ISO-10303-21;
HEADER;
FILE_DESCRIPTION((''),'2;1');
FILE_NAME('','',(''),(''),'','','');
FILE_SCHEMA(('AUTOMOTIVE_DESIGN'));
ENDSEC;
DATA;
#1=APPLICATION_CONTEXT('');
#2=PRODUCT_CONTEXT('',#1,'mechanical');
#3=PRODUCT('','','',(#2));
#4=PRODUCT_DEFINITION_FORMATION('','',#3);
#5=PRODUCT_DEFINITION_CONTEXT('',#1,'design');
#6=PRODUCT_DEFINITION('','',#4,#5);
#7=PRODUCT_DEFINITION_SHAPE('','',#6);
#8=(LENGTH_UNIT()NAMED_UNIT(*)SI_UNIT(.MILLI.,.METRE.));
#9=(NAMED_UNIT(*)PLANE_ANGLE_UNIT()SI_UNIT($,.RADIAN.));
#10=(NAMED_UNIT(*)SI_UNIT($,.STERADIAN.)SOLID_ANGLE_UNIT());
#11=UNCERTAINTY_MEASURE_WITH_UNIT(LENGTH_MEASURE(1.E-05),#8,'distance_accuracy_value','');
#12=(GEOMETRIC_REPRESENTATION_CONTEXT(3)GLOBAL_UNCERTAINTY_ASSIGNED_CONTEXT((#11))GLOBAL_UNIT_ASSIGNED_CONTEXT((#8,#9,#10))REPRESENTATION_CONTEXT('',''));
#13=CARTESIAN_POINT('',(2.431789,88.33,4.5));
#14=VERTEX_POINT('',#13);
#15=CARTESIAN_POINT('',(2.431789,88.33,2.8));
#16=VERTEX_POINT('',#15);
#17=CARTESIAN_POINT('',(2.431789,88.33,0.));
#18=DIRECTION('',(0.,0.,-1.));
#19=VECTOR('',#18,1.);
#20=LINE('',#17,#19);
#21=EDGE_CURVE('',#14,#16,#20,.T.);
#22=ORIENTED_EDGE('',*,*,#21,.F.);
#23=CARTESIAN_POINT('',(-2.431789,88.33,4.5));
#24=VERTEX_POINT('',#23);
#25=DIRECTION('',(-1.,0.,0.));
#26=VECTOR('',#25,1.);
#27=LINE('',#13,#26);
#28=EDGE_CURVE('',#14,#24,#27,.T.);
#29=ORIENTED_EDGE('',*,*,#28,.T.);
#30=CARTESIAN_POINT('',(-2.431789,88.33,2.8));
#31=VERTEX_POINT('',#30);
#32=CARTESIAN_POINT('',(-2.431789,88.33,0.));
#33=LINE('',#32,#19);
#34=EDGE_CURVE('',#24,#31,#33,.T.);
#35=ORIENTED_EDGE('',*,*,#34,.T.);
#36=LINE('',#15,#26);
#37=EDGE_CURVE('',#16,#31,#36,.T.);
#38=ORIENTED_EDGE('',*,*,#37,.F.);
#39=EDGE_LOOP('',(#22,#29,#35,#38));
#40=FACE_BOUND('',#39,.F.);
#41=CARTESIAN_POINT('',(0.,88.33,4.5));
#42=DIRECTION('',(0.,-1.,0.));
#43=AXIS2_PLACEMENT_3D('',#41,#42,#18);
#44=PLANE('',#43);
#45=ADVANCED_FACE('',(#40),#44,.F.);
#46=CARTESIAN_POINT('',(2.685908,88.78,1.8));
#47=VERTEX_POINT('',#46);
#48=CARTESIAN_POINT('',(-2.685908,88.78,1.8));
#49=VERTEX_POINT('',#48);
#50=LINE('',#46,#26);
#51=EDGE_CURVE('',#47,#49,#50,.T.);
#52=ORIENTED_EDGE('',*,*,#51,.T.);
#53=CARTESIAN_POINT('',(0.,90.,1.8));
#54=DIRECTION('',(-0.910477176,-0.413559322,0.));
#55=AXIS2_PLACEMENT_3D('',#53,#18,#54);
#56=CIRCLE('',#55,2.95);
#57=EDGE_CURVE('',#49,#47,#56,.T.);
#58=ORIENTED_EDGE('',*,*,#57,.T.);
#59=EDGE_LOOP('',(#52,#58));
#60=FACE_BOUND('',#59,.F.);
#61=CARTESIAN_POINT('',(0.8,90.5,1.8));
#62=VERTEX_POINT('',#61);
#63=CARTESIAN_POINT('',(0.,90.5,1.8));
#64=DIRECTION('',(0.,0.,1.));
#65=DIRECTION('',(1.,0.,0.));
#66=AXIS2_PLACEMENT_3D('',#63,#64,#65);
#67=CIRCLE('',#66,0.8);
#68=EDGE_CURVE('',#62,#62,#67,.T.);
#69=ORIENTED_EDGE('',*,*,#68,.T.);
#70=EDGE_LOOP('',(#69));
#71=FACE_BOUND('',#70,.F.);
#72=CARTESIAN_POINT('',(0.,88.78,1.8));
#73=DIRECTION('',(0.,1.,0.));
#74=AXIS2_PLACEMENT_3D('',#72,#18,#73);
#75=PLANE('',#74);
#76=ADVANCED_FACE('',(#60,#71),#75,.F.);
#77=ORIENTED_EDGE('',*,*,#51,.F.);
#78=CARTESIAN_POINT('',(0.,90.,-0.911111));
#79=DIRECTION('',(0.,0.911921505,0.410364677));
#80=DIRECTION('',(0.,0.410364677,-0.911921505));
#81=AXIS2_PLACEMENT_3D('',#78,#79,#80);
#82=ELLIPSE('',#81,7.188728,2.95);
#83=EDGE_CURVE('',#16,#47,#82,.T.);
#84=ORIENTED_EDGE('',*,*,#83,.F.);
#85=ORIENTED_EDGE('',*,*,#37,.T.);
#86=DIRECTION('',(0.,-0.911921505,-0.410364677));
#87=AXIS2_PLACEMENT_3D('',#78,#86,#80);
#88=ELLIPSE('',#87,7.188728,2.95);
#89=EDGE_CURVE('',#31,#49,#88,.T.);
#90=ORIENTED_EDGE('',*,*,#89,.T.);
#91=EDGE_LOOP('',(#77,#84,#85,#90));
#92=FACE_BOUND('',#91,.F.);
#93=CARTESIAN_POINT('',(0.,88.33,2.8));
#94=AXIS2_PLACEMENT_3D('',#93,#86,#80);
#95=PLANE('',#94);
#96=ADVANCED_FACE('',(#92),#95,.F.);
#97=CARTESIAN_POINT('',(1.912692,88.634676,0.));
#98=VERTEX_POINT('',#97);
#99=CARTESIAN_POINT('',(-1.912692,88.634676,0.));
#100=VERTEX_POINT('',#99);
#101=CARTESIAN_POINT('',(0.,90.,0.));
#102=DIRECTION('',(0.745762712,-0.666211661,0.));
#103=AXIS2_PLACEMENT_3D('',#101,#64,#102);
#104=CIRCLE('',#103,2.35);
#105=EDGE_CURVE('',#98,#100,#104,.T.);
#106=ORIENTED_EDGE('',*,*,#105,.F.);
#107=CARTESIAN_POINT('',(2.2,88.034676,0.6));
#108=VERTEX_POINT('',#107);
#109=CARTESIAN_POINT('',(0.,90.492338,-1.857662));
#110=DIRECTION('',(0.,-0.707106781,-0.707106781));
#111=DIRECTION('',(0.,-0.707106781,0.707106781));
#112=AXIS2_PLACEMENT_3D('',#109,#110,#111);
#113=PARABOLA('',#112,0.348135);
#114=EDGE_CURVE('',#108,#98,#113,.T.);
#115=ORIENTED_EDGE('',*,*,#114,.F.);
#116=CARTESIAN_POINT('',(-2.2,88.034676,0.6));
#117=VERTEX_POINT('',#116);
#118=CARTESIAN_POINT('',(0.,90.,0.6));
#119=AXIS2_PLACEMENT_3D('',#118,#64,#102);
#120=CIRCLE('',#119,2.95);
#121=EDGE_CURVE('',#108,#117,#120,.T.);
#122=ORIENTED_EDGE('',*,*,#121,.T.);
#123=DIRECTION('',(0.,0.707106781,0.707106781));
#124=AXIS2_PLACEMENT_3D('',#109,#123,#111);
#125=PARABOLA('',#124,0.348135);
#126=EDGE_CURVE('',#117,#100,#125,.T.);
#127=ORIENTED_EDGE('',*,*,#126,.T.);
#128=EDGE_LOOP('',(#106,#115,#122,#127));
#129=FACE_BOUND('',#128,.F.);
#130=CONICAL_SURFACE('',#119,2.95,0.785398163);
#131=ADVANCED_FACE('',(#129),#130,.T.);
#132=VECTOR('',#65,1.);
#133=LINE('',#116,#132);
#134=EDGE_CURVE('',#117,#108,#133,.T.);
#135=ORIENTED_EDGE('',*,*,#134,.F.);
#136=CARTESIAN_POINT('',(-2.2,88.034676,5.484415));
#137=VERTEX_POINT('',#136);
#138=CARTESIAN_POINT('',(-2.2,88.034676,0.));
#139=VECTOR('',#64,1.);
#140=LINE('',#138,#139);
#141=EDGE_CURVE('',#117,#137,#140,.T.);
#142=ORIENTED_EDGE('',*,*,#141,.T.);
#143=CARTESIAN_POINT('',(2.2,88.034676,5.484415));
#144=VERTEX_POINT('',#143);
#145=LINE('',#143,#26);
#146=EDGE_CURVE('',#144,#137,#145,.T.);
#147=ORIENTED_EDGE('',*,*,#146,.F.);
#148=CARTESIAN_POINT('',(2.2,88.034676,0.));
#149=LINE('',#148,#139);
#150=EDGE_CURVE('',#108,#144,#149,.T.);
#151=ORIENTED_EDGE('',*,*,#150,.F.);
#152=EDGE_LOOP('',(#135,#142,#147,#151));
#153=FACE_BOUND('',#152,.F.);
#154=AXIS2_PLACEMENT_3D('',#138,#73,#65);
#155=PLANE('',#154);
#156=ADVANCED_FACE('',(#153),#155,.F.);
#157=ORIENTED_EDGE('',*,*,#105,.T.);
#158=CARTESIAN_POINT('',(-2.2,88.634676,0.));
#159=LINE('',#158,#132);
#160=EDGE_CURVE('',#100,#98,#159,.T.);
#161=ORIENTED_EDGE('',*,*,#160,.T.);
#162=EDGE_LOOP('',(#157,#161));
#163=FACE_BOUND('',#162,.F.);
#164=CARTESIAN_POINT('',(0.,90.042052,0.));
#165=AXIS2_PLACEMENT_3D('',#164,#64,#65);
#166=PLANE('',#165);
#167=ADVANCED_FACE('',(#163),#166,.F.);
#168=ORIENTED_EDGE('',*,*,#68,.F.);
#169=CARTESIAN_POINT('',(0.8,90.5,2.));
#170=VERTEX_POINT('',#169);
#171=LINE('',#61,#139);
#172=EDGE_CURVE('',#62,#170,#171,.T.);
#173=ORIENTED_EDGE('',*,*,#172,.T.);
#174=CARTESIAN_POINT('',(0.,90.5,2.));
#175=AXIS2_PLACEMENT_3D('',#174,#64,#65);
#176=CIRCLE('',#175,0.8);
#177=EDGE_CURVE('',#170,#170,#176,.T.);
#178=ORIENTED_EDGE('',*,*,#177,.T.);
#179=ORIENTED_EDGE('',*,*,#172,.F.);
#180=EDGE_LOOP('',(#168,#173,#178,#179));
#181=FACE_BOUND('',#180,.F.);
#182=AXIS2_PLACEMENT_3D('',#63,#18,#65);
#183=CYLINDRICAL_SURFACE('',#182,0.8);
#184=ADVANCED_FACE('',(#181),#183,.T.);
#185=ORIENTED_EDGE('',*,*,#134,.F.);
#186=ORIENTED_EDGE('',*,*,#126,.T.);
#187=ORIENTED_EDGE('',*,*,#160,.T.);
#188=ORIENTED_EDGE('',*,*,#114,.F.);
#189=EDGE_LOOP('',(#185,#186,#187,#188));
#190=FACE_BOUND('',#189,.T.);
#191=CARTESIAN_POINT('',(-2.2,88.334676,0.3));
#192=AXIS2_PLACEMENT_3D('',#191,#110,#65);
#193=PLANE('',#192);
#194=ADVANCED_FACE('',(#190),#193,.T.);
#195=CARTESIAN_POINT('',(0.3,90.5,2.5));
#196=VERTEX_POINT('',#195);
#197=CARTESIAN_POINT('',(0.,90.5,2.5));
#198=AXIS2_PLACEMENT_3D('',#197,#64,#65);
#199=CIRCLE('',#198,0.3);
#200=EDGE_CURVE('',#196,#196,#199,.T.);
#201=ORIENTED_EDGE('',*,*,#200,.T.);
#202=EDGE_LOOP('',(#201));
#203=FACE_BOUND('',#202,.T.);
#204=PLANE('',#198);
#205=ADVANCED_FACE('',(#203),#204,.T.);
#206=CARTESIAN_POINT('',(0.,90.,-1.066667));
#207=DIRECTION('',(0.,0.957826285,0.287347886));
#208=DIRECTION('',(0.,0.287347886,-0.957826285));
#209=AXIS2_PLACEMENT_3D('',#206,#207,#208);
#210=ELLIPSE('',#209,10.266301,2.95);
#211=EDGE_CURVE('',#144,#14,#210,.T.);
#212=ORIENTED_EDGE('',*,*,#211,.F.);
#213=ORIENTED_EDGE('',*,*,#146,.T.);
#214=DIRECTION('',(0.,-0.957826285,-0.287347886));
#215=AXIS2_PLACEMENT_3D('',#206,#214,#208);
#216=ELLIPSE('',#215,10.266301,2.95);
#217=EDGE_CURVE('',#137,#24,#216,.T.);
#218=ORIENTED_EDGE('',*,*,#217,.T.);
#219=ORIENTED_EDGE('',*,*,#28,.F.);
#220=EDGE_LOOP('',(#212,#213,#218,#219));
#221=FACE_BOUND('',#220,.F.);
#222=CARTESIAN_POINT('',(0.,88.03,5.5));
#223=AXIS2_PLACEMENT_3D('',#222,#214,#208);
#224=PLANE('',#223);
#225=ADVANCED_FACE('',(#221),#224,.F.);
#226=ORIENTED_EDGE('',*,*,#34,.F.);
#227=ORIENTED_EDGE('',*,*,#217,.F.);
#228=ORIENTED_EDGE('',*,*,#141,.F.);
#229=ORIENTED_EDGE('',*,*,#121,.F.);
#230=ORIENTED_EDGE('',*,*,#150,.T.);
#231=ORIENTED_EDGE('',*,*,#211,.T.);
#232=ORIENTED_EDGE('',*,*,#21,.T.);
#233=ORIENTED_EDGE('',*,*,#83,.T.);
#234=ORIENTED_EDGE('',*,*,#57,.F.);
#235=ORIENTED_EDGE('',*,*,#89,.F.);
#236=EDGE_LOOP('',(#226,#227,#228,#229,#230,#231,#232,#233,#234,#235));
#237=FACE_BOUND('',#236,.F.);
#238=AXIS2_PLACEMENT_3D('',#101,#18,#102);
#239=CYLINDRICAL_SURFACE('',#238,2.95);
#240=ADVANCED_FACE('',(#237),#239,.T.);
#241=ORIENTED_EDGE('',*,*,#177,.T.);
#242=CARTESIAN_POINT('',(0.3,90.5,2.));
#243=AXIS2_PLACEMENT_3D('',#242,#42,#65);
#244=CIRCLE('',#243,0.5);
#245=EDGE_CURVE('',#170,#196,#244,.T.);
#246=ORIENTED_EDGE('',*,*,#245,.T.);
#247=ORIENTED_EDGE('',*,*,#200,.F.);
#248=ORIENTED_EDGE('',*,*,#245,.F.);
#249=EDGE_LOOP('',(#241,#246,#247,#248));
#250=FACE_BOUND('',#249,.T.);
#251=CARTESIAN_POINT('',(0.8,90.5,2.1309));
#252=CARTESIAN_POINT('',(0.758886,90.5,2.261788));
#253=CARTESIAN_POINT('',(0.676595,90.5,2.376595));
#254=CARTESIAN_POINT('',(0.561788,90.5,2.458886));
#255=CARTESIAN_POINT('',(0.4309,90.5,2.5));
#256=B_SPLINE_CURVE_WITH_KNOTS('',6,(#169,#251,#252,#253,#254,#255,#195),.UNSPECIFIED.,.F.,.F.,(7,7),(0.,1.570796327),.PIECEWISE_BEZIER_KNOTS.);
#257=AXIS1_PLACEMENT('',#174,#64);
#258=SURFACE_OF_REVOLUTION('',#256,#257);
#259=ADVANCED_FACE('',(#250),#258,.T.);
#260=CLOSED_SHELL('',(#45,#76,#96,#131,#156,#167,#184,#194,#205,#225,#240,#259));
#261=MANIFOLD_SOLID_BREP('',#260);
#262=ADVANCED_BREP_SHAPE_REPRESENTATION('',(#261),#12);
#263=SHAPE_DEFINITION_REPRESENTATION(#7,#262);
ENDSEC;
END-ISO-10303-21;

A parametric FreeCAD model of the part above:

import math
import FreeCAD as App
import Part
import Sketcher
from FreeCAD import Vector
Q = App.Units.Quantity


def edges_at(feature, points):
    """Names of the edges that pass closest to the given points."""
    edges = feature.Shape.Edges
    near = lambda p: min(range(len(edges)), key=lambda i: edges[i].distToShape(Part.Vertex(*p))[0])
    return sorted({f"Edge{near(p) + 1}" for p in points})

doc = App.newDocument("Part")
body = doc.addObject("PartDesign::Body", "Body")

# Sketch on XY plane
sketch1 = body.newObject("Sketcher::SketchObject", "Sketch")
sketch1.AttachmentSupport = (doc.getObject("XY_Plane"), [""])
sketch1.MapMode = "FlatFace"
sketch1.addGeometry(Part.ArcOfCircle(Part.Circle(Vector(0, 0, 0), Vector(0, 0, 1), 2.95), math.radians(-41.775348), math.radians(221.775348)), False)
sketch1.addGeometry(Part.LineSegment(Vector(-2.2, -1.965324, 0), Vector(2.2, -1.965324, 0)), False)
sketch1.addConstraint(Sketcher.Constraint("Coincident", 0, 1, 1, 2))
sketch1.addConstraint(Sketcher.Constraint("Coincident", 1, 1, 0, 2))
sketch1.addConstraint(Sketcher.Constraint("Horizontal", 1))
sketch1.addConstraint(Sketcher.Constraint("Coincident", 0, 3, -1, 1))
sketch1.addConstraint(Sketcher.Constraint("Radius", 0, Q("2.95 mm")))
sketch1.addConstraint(Sketcher.Constraint("DistanceX", 1, 1, 1, 2, Q("4.4 mm")))
pad1 = body.newObject("PartDesign::Pad", "Pad")
pad1.Profile = sketch1
pad1.Length = 5.5

# Sketch on YZ plane
sketch2 = body.newObject("Sketcher::SketchObject", "Sketch001")
sketch2.AttachmentSupport = (doc.getObject("YZ_Plane"), [""])
sketch2.MapMode = "FlatFace"
sketch2.addGeometry(Part.LineSegment(Vector(-1.97, 5.5, 0), Vector(-1.67, 4.5, 0)), False)
sketch2.addGeometry(Part.LineSegment(Vector(-1.67, 4.5, 0), Vector(-1.67, 2.8, 0)), False)
sketch2.addGeometry(Part.LineSegment(Vector(-1.67, 2.8, 0), Vector(-1.22, 1.8, 0)), False)
sketch2.addGeometry(Part.LineSegment(Vector(-1.22, 1.8, 0), Vector(4, 1.8, 0)), False)
sketch2.addGeometry(Part.LineSegment(Vector(4, 1.8, 0), Vector(4, 5.5, 0)), False)
sketch2.addGeometry(Part.LineSegment(Vector(4, 5.5, 0), Vector(-1.97, 5.5, 0)), False)
sketch2.addConstraint(Sketcher.Constraint("Coincident", 0, 2, 1, 1))
sketch2.addConstraint(Sketcher.Constraint("Coincident", 1, 2, 2, 1))
sketch2.addConstraint(Sketcher.Constraint("Coincident", 2, 2, 3, 1))
sketch2.addConstraint(Sketcher.Constraint("Coincident", 3, 2, 4, 1))
sketch2.addConstraint(Sketcher.Constraint("Coincident", 4, 2, 5, 1))
sketch2.addConstraint(Sketcher.Constraint("Coincident", 5, 2, 0, 1))
sketch2.addConstraint(Sketcher.Constraint("Vertical", 1))
sketch2.addConstraint(Sketcher.Constraint("Horizontal", 3))
sketch2.addConstraint(Sketcher.Constraint("Vertical", 4))
sketch2.addConstraint(Sketcher.Constraint("Horizontal", 5))
sketch2.addConstraint(Sketcher.Constraint("DistanceY", 1, 2, 1, 1, Q("1.7 mm")))
sketch2.addConstraint(Sketcher.Constraint("DistanceY", 4, 1, 4, 2, Q("3.7 mm")))
sketch2.addConstraint(Sketcher.Constraint("DistanceX", -1, 1, 3, 2, Q("4 mm")))
sketch2.addConstraint(Sketcher.Constraint("DistanceY", 2, 2, 1, 2, Q("1 mm")))
sketch2.addConstraint(Sketcher.Constraint("DistanceX", 3, 1, 3, 2, Q("5.22 mm")))
sketch2.addConstraint(Sketcher.Constraint("DistanceX", 5, 2, 5, 1, Q("5.97 mm")))
sketch2.addConstraint(Sketcher.Constraint("DistanceY", -1, 1, 0, 2, Q("4.5 mm")))
sketch2.addConstraint(Sketcher.Constraint("DistanceX", 5, 2, 0, 2, Q("0.3 mm")))
pocket1 = body.newObject("PartDesign::Pocket", "Pocket")
pocket1.Profile = sketch2
pocket1.Type = "ThroughAll"
pocket1.Midplane = True

# Sketch on XY plane
sketch3 = body.newObject("Sketcher::SketchObject", "Sketch002")
sketch3.AttachmentSupport = (doc.getObject("XY_Plane"), [""])
sketch3.MapMode = "FlatFace"
sketch3.AttachmentOffset = App.Placement(Vector(0, 0, 1.8), App.Rotation())
sketch3.addGeometry(Part.Circle(Vector(0, 0.5, 0), Vector(0, 0, 1), 0.8), False)
sketch3.addConstraint(Sketcher.Constraint("PointOnObject", 0, 3, -2))
sketch3.addConstraint(Sketcher.Constraint("Diameter", 0, Q("1.6 mm")))
sketch3.addConstraint(Sketcher.Constraint("DistanceY", -1, 1, 0, 3, Q("0.5 mm")))
pad2 = body.newObject("PartDesign::Pad", "Pad001")
pad2.Profile = sketch3
pad2.Length = 0.7
doc.recompute()

fillet = body.newObject("PartDesign::Fillet", "Fillet")
fillet.Base = (pad2, edges_at(pad2, [(-0.8, 0.5, 2.5)]))
fillet.Radius = 0.5
doc.recompute()

chamfer = body.newObject("PartDesign::Chamfer", "Chamfer")
chamfer.Base = (fillet, edges_at(fillet, [(0, 2.95, 0), (0, -1.965, 0)]))
chamfer.Size = 0.6
body2 = doc.addObject("PartDesign::Body", "Body001")
doc.recompute()

body.Placement = App.Placement(Vector(0, 90, 0), App.Rotation(Vector(0, 0, 1), 0))
boolean = body2.newObject("PartDesign::Boolean", "Boolean")
boolean.Type = "Fuse"
boolean.addObjects([body])

doc.recompute()
